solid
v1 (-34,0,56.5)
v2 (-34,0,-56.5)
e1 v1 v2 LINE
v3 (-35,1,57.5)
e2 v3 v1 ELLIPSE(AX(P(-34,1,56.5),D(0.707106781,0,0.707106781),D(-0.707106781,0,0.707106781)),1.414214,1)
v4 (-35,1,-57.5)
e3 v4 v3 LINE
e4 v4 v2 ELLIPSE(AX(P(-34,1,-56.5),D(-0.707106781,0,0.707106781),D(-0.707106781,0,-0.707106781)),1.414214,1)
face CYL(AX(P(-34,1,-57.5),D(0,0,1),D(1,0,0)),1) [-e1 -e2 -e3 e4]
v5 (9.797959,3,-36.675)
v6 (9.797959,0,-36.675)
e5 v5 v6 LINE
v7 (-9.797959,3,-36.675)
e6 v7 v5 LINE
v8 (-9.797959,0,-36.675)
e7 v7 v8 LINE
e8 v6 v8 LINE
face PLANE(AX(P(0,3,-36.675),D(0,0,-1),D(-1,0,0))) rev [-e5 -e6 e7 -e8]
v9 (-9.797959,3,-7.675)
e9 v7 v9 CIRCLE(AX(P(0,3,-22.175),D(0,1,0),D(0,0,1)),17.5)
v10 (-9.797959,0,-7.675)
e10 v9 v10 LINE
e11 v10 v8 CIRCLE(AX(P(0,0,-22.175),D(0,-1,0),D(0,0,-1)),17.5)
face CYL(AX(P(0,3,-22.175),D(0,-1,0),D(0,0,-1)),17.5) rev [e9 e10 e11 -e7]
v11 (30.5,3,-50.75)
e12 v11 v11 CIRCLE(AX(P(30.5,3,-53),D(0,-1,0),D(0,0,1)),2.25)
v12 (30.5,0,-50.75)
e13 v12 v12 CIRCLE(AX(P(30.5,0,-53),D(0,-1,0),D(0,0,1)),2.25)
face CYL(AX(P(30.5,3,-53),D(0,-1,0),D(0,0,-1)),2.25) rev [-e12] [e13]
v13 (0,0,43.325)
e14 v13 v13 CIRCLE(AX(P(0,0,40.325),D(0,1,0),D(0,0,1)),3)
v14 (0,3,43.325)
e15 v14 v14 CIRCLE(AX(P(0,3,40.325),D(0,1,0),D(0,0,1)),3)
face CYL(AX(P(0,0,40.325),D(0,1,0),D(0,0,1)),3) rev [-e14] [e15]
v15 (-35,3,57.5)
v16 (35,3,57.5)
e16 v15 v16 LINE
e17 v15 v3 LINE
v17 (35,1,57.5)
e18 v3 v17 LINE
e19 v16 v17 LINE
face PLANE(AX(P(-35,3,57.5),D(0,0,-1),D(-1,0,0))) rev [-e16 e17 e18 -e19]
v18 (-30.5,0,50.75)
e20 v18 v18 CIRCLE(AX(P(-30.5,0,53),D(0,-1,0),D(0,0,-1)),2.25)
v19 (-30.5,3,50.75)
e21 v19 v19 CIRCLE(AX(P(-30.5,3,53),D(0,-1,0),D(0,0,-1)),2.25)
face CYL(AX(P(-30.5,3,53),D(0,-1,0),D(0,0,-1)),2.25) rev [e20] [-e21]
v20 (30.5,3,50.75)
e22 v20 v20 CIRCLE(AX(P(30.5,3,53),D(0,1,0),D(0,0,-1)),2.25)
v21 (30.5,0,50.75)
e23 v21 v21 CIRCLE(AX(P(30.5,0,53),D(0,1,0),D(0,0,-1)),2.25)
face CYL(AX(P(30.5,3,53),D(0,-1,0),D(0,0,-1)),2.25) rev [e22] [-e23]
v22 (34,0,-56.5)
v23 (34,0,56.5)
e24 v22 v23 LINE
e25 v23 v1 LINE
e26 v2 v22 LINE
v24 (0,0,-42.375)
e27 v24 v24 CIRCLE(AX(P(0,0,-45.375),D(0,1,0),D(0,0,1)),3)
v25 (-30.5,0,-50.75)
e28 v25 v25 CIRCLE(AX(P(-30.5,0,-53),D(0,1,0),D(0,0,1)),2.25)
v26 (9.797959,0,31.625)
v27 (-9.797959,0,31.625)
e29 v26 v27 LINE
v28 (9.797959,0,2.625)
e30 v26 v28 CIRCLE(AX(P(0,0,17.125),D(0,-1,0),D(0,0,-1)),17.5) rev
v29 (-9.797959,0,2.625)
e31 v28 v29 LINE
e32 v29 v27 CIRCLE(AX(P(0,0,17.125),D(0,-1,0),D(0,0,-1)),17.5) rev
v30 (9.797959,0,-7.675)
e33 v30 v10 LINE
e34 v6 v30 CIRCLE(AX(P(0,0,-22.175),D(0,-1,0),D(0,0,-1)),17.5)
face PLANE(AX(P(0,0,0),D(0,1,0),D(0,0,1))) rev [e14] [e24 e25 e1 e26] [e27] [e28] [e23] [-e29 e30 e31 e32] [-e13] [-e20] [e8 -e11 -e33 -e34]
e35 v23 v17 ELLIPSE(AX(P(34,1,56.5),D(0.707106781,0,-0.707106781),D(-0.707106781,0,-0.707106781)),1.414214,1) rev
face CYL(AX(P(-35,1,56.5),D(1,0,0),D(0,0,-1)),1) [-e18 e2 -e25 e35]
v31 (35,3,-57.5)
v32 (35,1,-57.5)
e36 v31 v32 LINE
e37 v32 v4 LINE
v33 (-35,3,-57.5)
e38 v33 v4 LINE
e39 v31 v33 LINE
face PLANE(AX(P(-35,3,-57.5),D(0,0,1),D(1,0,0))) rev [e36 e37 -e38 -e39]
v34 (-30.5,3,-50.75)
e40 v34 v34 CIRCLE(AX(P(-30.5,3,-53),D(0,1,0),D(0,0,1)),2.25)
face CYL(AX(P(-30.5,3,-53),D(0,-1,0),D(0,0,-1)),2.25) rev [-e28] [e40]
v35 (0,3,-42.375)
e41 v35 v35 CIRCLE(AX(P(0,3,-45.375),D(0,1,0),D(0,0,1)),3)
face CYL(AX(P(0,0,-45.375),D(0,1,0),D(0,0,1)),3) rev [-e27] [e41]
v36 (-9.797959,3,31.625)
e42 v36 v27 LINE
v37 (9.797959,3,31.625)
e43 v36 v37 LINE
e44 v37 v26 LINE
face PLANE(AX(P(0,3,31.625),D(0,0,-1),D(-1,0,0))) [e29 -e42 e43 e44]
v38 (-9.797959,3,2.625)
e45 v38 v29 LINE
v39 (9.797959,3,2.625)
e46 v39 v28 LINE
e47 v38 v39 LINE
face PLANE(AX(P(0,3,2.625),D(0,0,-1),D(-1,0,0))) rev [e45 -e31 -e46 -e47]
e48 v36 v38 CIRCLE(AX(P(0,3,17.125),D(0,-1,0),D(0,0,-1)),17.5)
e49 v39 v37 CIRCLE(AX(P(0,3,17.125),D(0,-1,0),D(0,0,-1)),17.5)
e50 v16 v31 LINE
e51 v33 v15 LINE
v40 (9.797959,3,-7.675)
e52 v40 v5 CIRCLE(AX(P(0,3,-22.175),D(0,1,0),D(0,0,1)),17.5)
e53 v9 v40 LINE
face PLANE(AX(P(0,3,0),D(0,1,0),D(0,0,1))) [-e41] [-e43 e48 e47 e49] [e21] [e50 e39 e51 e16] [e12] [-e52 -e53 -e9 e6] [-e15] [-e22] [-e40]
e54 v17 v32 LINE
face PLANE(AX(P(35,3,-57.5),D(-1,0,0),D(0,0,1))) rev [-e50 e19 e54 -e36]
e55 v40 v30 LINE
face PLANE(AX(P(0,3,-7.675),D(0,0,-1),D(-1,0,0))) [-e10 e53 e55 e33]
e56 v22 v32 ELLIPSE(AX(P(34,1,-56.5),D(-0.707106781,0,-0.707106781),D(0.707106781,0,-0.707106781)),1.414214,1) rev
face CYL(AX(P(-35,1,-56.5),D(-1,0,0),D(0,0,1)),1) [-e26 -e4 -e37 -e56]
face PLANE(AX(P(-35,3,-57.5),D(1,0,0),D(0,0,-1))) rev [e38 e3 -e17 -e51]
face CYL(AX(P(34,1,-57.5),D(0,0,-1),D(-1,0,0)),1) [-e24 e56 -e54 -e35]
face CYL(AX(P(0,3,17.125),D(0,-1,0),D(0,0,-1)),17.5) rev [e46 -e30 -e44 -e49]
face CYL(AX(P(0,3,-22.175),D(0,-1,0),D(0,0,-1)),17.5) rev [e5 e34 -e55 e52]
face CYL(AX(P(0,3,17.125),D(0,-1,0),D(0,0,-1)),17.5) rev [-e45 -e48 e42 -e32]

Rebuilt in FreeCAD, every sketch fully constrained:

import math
import FreeCAD as App
import Part
import Sketcher
Q = App.Units.Quantity


def edges_at(feature, points):
    """Names of the edges that pass closest to the given points."""
    edges = feature.Shape.Edges
    near = lambda p: min(range(len(edges)), key=lambda i: edges[i].distToShape(Part.Vertex(*p))[0])
    return sorted({f"Edge{near(p) + 1}" for p in points})


def add_polygon(sketch, points):
    """Adds a closed chain of lines whose ends are joined by coincident constraints."""
    first, n = sketch.GeometryCount, len(points)
    for a, b in zip(points, points[1:] + points[:1]):
        sketch.addGeometry(Part.LineSegment(App.Vector(*a, 0), App.Vector(*b, 0)), False)
    for i in range(n):
        sketch.addConstraint(Sketcher.Constraint("Coincident", first + i, 2, first + (i + 1) % n, 1))

doc = App.newDocument("Part")
body = doc.addObject("PartDesign::Body", "Body")

sketch1 = body.newObject("Sketcher::SketchObject", "Sketch")
sketch1.AttachmentSupport = (doc.getObject("XZ_Plane"), [""])
sketch1.MapMode = "FlatFace"
add_polygon(sketch1, [(-35, -58), (-35, 58), (35, 58), (35, -58)])
sketch1.addConstraint(Sketcher.Constraint("Vertical", 0))
sketch1.addConstraint(Sketcher.Constraint("Horizontal", 1))
sketch1.addConstraint(Sketcher.Constraint("Vertical", 2))
sketch1.addConstraint(Sketcher.Constraint("Horizontal", 3))
sketch1.addConstraint(Sketcher.Constraint("Symmetric", 0, 2, 2, 2, -1, 1))
sketch1.addConstraint(Sketcher.Constraint("DistanceX", 1, 1, 1, 2, Q("70 mm")))
sketch1.addConstraint(Sketcher.Constraint("DistanceY", 0, 1, 0, 2, Q("115 mm")))
pad1 = body.newObject("PartDesign::Pad", "Pad")
pad1.Profile = sketch1
pad1.Length = 3
pad1.Reversed = True

sketch2 = body.newObject("Sketcher::SketchObject", "Sketch001")
sketch2.AttachmentSupport = (doc.getObject("XZ_Plane"), [""])
sketch2.MapMode = "FlatFace"
sketch2.addGeometry(Part.Circle(App.Vector(-30.5, 53, 0), App.Vector(0, 0, 1), 2.2), False)
sketch2.addConstraint(Sketcher.Constraint("Diameter", 0, Q("4.5 mm")))
sketch2.addConstraint(Sketcher.Constraint("DistanceY", -1, 1, 0, 3, Q("53 mm")))
sketch2.addConstraint(Sketcher.Constraint("DistanceX", 0, 3, -1, 1, Q("30.5 mm")))
pocket1 = body.newObject("PartDesign::Pocket", "Pocket")
pocket1.Profile = sketch2
pocket1.Length = 3
doc.recompute()

mirrored = body.newObject("PartDesign::Mirrored", "Mirrored")
mirrored.Originals = [pocket1]
mirrored.MirrorPlane = (doc.getObject("YZ_Plane"), [""])
body.Tip = mirrored
doc.recompute()

mirrored2 = body.newObject("PartDesign::Mirrored", "Mirrored001")
mirrored2.Originals = [pocket1]
mirrored2.MirrorPlane = (doc.getObject("XY_Plane"), [""])
body.Tip = mirrored2

sketch3 = body.newObject("Sketcher::SketchObject", "Sketch002")
sketch3.AttachmentSupport = (doc.getObject("XZ_Plane"), [""])
sketch3.MapMode = "FlatFace"
sketch3.addGeometry(Part.Circle(App.Vector(30.5, -53, 0), App.Vector(0, 0, 1), 2.2), False)
sketch3.addConstraint(Sketcher.Constraint("Diameter", 0, Q("4.5 mm")))
sketch3.addConstraint(Sketcher.Constraint("DistanceY", 0, 3, -1, 1, Q("53 mm")))
sketch3.addConstraint(Sketcher.Constraint("DistanceX", -1, 1, 0, 3, Q("30.5 mm")))
pocket2 = body.newObject("PartDesign::Pocket", "Pocket001")
pocket2.Profile = sketch3
pocket2.Length = 3
doc.recompute()

fillet = body.newObject("PartDesign::Fillet", "Fillet")
fillet.Base = (pocket2, edges_at(pocket2, [
    (0, 0, 57.5),
    (-35, 0, 0),
    (0, 0, -57.5),
    (35, 0, 0),
]))
fillet.Radius = 1

sketch4 = body.newObject("Sketcher::SketchObject", "Sketch003")
sketch4.AttachmentSupport = (doc.getObject("XZ_Plane"), [""])
sketch4.MapMode = "FlatFace"
sketch4.AttachmentOffset = App.Placement(App.Vector(0, 0, -3), App.Rotation())
sketch4.addGeometry(Part.LineSegment(App.Vector(10, 32, 0), App.Vector(-10, 32, 0)), False)
sketch4.addGeometry(Part.ArcOfCircle(Part.Circle(App.Vector(0, 17, 0), App.Vector(0, 0, 1), 18), math.radians(124), math.radians(236)), False)
sketch4.addGeometry(Part.LineSegment(App.Vector(-10, 3, 0), App.Vector(10, 3, 0)), False)
sketch4.addGeometry(Part.ArcOfCircle(Part.Circle(App.Vector(0, 17, 0), App.Vector(0, 0, 1), 18), math.radians(-56), math.radians(56)), False)
sketch4.addConstraint(Sketcher.Constraint("Coincident", 0, 2, 1, 1))
sketch4.addConstraint(Sketcher.Constraint("Coincident", 1, 2, 2, 1))
sketch4.addConstraint(Sketcher.Constraint("Coincident", 2, 2, 3, 1))
sketch4.addConstraint(Sketcher.Constraint("Coincident", 3, 2, 0, 1))
sketch4.addConstraint(Sketcher.Constraint("Horizontal", 0))
sketch4.addConstraint(Sketcher.Constraint("Horizontal", 2))
sketch4.addConstraint(Sketcher.Constraint("Coincident", 3, 3, 1, 3))
sketch4.addConstraint(Sketcher.Constraint("Equal", 1, 3))
sketch4.addConstraint(Sketcher.Constraint("PointOnObject", 1, 3, -2))
sketch4.addConstraint(Sketcher.Constraint("Vertical", 0, 2, 1, 2))
sketch4.addConstraint(Sketcher.Constraint("Radius", 1, Q("17.5 mm")))
sketch4.addConstraint(Sketcher.Constraint("DistanceY", 1, 2, 0, 2, Q("29 mm")))
sketch4.addConstraint(Sketcher.Constraint("DistanceY", -1, 1, 1, 3, Q("17.125 mm")))
pocket3 = body.newObject("PartDesign::Pocket", "Pocket002")
pocket3.Profile = sketch4
pocket3.Length = 4
pocket3.Reversed = True
doc.recompute()

datumplane = body.newObject("PartDesign::Plane", "DatumPlane")
datumplane.AttachmentSupport = (doc.getObject("XY_Plane"), [""])
datumplane.MapMode = "FlatFace"
datumplane.AttachmentOffset = App.Placement(App.Vector(0, 0, -2.525), App.Rotation())
mirrored3 = body.newObject("PartDesign::Mirrored", "Mirrored002")
mirrored3.Originals = [pocket3]
mirrored3.MirrorPlane = (datumplane, [""])
body.Tip = mirrored3

sketch5 = body.newObject("Sketcher::SketchObject", "Sketch004")
sketch5.AttachmentSupport = (doc.getObject("XZ_Plane"), [""])
sketch5.MapMode = "FlatFace"
sketch5.AttachmentOffset = App.Placement(App.Vector(0, 0, -3), App.Rotation())
sketch5.addGeometry(Part.Circle(App.Vector(0, -45.4, 0), App.Vector(0, 0, 1), 3), False)
sketch5.addGeometry(Part.Circle(App.Vector(0, 40.3, 0), App.Vector(0, 0, 1), 3), False)
sketch5.addConstraint(Sketcher.Constraint("Equal", 0, 1))
sketch5.addConstraint(Sketcher.Constraint("PointOnObject", 0, 3, -2))
sketch5.addConstraint(Sketcher.Constraint("PointOnObject", 1, 3, -2))
sketch5.addConstraint(Sketcher.Constraint("Diameter", 0, Q("6 mm")))
sketch5.addConstraint(Sketcher.Constraint("DistanceY", 0, 3, 1, 3, Q("85.7 mm")))
sketch5.addConstraint(Sketcher.Constraint("DistanceY", 0, 3, -1, 1, Q("45.375 mm")))
pocket4 = body.newObject("PartDesign::Pocket", "Pocket003")
pocket4.Profile = sketch5
pocket4.Length = 3
pocket4.Reversed = True

doc.recompute()
